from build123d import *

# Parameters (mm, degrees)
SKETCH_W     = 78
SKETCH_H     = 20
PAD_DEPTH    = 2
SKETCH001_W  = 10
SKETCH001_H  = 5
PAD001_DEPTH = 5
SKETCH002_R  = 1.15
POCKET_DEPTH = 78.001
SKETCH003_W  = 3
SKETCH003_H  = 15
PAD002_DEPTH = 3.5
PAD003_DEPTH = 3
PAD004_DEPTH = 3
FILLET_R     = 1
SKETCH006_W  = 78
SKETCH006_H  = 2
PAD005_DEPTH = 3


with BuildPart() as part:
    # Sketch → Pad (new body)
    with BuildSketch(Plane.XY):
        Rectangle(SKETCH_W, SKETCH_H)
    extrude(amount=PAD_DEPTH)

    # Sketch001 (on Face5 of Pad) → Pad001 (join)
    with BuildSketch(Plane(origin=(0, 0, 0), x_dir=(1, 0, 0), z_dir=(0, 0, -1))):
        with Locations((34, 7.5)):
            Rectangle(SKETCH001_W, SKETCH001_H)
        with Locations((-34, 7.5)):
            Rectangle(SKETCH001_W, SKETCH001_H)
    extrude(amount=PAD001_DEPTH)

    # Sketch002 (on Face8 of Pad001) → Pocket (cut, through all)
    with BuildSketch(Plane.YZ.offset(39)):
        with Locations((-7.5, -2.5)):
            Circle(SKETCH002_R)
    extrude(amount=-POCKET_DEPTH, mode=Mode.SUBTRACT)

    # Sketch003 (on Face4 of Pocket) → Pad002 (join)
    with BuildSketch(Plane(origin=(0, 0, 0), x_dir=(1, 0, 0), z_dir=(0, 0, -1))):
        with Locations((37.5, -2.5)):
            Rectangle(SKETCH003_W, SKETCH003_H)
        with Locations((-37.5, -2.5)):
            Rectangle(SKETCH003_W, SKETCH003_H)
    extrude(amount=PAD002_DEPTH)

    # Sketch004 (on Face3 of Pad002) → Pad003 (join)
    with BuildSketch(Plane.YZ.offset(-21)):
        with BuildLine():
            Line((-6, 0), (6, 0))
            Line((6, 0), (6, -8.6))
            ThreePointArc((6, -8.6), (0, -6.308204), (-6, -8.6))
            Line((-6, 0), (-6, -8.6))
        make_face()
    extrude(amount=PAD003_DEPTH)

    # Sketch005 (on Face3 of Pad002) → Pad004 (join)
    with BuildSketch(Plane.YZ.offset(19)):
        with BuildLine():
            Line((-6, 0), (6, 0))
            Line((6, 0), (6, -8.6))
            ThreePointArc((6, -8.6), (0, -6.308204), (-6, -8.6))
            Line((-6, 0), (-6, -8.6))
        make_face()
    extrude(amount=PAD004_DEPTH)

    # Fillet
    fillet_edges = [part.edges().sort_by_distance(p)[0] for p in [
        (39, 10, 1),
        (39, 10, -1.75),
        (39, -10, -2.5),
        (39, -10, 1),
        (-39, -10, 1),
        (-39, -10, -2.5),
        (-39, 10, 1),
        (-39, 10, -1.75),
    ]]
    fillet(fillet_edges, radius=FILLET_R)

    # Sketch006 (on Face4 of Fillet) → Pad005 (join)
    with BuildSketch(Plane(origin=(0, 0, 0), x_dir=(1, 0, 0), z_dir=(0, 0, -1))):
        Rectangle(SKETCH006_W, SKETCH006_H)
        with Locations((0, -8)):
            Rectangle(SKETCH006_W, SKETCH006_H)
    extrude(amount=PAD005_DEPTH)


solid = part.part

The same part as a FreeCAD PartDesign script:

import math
import FreeCAD as App
import Part
import Sketcher
from FreeCAD import Vector


def edges_at(feature, points):
    """Names of the edges that pass closest to the given points."""
    edges = feature.Shape.Edges
    near = lambda p: min(range(len(edges)), key=lambda i: edges[i].distToShape(Part.Vertex(*p))[0])
    return sorted({f"Edge{near(p) + 1}" for p in points})

doc = App.newDocument("Part")
body = doc.addObject("PartDesign::Body", "Body")

# Sketch on XY plane
sketch1 = body.newObject("Sketcher::SketchObject", "Sketch")
sketch1.AttachmentSupport = (doc.getObject("XY_Plane"), [""])
sketch1.MapMode = "FlatFace"
sketch1.addGeometry(Part.LineSegment(Vector(-39, 10, 0), Vector(-39, -10, 0)), False)
sketch1.addGeometry(Part.LineSegment(Vector(-39, -10, 0), Vector(39, -10, 0)), False)
sketch1.addGeometry(Part.LineSegment(Vector(39, -10, 0), Vector(39, 10, 0)), False)
sketch1.addGeometry(Part.LineSegment(Vector(39, 10, 0), Vector(-39, 10, 0)), False)
sketch1.addConstraint(Sketcher.Constraint("Coincident", 0, 2, 1, 1))
sketch1.addConstraint(Sketcher.Constraint("Coincident", 1, 2, 2, 1))
sketch1.addConstraint(Sketcher.Constraint("Coincident", 2, 2, 3, 1))
sketch1.addConstraint(Sketcher.Constraint("Coincident", 3, 2, 0, 1))
sketch1.addConstraint(Sketcher.Constraint("Vertical", 0))
sketch1.addConstraint(Sketcher.Constraint("Horizontal", 1))
sketch1.addConstraint(Sketcher.Constraint("Vertical", 2))
sketch1.addConstraint(Sketcher.Constraint("Horizontal", 3))
sketch1.addConstraint(Sketcher.Constraint("Symmetric", 0, 2, 2, 2, -1, 1))
sketch1.addConstraint(Sketcher.Constraint("DistanceX", 1, 1, 1, 2, 78.0))
sketch1.addConstraint(Sketcher.Constraint("DistanceY", 0, 2, 0, 1, 20.0))
pad1 = body.newObject("PartDesign::Pad", "Pad")
pad1.Profile = sketch1
pad1.Length = 2

# Sketch on XY plane
sketch2 = body.newObject("Sketcher::SketchObject", "Sketch001")
sketch2.AttachmentSupport = (doc.getObject("XY_Plane"), [""])
sketch2.MapMode = "FlatFace"
sketch2.addGeometry(Part.LineSegment(Vector(29, -10, 0), Vector(29, -5, 0)), False)
sketch2.addGeometry(Part.LineSegment(Vector(29, -5, 0), Vector(39, -5, 0)), False)
sketch2.addGeometry(Part.LineSegment(Vector(39, -5, 0), Vector(39, -10, 0)), False)
sketch2.addGeometry(Part.LineSegment(Vector(39, -10, 0), Vector(29, -10, 0)), False)
sketch2.addGeometry(Part.LineSegment(Vector(-39, -10, 0), Vector(-39, -5, 0)), False)
sketch2.addGeometry(Part.LineSegment(Vector(-39, -5, 0), Vector(-29, -5, 0)), False)
sketch2.addGeometry(Part.LineSegment(Vector(-29, -5, 0), Vector(-29, -10, 0)), False)
sketch2.addGeometry(Part.LineSegment(Vector(-29, -10, 0), Vector(-39, -10, 0)), False)
sketch2.addConstraint(Sketcher.Constraint("Coincident", 0, 2, 1, 1))
sketch2.addConstraint(Sketcher.Constraint("Coincident", 1, 2, 2, 1))
sketch2.addConstraint(Sketcher.Constraint("Coincident", 2, 2, 3, 1))
sketch2.addConstraint(Sketcher.Constraint("Coincident", 3, 2, 0, 1))
sketch2.addConstraint(Sketcher.Constraint("Coincident", 4, 2, 5, 1))
sketch2.addConstraint(Sketcher.Constraint("Coincident", 5, 2, 6, 1))
sketch2.addConstraint(Sketcher.Constraint("Coincident", 6, 2, 7, 1))
sketch2.addConstraint(Sketcher.Constraint("Coincident", 7, 2, 4, 1))
sketch2.addConstraint(Sketcher.Constraint("Vertical", 0))
sketch2.addConstraint(Sketcher.Constraint("Horizontal", 1))
sketch2.addConstraint(Sketcher.Constraint("Vertical", 2))
sketch2.addConstraint(Sketcher.Constraint("Horizontal", 3))
sketch2.addConstraint(Sketcher.Constraint("Vertical", 4))
sketch2.addConstraint(Sketcher.Constraint("Horizontal", 5))
sketch2.addConstraint(Sketcher.Constraint("Vertical", 6))
sketch2.addConstraint(Sketcher.Constraint("Horizontal", 7))
sketch2.addConstraint(Sketcher.Constraint("Symmetric", 1, 2, 4, 2, -2))
sketch2.addConstraint(Sketcher.Constraint("Symmetric", 3, 2, 6, 2, -2))
sketch2.addConstraint(Sketcher.Constraint("DistanceX", 1, 1, 1, 2, 10.0))
sketch2.addConstraint(Sketcher.Constraint("DistanceY", 0, 1, 0, 2, 5.0))
sketch2.addConstraint(Sketcher.Constraint("DistanceX", -1, 1, 0, 2, 29.0))
sketch2.addConstraint(Sketcher.Constraint("DistanceY", 0, 2, -1, 1, 5.0))
pad2 = body.newObject("PartDesign::Pad", "Pad001")
pad2.Profile = sketch2
pad2.Length = 5
pad2.Reversed = True

# Sketch on YZ plane
sketch3 = body.newObject("Sketcher::SketchObject", "Sketch002")
sketch3.AttachmentSupport = (doc.getObject("YZ_Plane"), [""])
sketch3.MapMode = "FlatFace"
sketch3.AttachmentOffset = App.Placement(Vector(0, 0, 39), App.Rotation())
sketch3.addGeometry(Part.Circle(Vector(-7.5, -2.5, 0), Vector(0, 0, 1), 1.15), False)
sketch3.addConstraint(Sketcher.Constraint("Diameter", 0, 2.3))
sketch3.addConstraint(Sketcher.Constraint("DistanceX", 0, 3, -1, 1, 7.5))
sketch3.addConstraint(Sketcher.Constraint("DistanceY", 0, 3, -1, 1, 2.5))
pocket1 = body.newObject("PartDesign::Pocket", "Pocket")
pocket1.Profile = sketch3
pocket1.Type = "ThroughAll"

# Sketch on XY plane
sketch4 = body.newObject("Sketcher::SketchObject", "Sketch003")
sketch4.AttachmentSupport = (doc.getObject("XY_Plane"), [""])
sketch4.MapMode = "FlatFace"
sketch4.addGeometry(Part.LineSegment(Vector(36, -5, 0), Vector(36, 10, 0)), False)
sketch4.addGeometry(Part.LineSegment(Vector(36, 10, 0), Vector(39, 10, 0)), False)
sketch4.addGeometry(Part.LineSegment(Vector(39, 10, 0), Vector(39, -5, 0)), False)
sketch4.addGeometry(Part.LineSegment(Vector(39, -5, 0), Vector(36, -5, 0)), False)
sketch4.addGeometry(Part.LineSegment(Vector(-39, -5, 0), Vector(-39, 10, 0)), False)
sketch4.addGeometry(Part.LineSegment(Vector(-39, 10, 0), Vector(-36, 10, 0)), False)
sketch4.addGeometry(Part.LineSegment(Vector(-36, 10, 0), Vector(-36, -5, 0)), False)
sketch4.addGeometry(Part.LineSegment(Vector(-36, -5, 0), Vector(-39, -5, 0)), False)
sketch4.addConstraint(Sketcher.Constraint("Coincident", 0, 2, 1, 1))
sketch4.addConstraint(Sketcher.Constraint("Coincident", 1, 2, 2, 1))
sketch4.addConstraint(Sketcher.Constraint("Coincident", 2, 2, 3, 1))
sketch4.addConstraint(Sketcher.Constraint("Coincident", 3, 2, 0, 1))
sketch4.addConstraint(Sketcher.Constraint("Coincident", 4, 2, 5, 1))
sketch4.addConstraint(Sketcher.Constraint("Coincident", 5, 2, 6, 1))
sketch4.addConstraint(Sketcher.Constraint("Coincident", 6, 2, 7, 1))
sketch4.addConstraint(Sketcher.Constraint("Coincident", 7, 2, 4, 1))
sketch4.addConstraint(Sketcher.Constraint("Vertical", 0))
sketch4.addConstraint(Sketcher.Constraint("Horizontal", 1))
sketch4.addConstraint(Sketcher.Constraint("Vertical", 2))
sketch4.addConstraint(Sketcher.Constraint("Horizontal", 3))
sketch4.addConstraint(Sketcher.Constraint("Vertical", 4))
sketch4.addConstraint(Sketcher.Constraint("Horizontal", 5))
sketch4.addConstraint(Sketcher.Constraint("Vertical", 6))
sketch4.addConstraint(Sketcher.Constraint("Horizontal", 7))
sketch4.addConstraint(Sketcher.Constraint("Symmetric", 1, 2, 4, 2, -2))
sketch4.addConstraint(Sketcher.Constraint("Symmetric", 3, 2, 6, 2, -2))
sketch4.addConstraint(Sketcher.Constraint("DistanceX", 1, 1, 1, 2, 3.0))
sketch4.addConstraint(Sketcher.Constraint("DistanceY", 0, 1, 0, 2, 15.0))
sketch4.addConstraint(Sketcher.Constraint("DistanceX", -1, 1, 0, 2, 36.0))
sketch4.addConstraint(Sketcher.Constraint("DistanceY", -1, 1, 0, 2, 10.0))
pad3 = body.newObject("PartDesign::Pad", "Pad002")
pad3.Profile = sketch4
pad3.Length = 3.5
pad3.Reversed = True

# Sketch on YZ plane
sketch5 = body.newObject("Sketcher::SketchObject", "Sketch004")
sketch5.AttachmentSupport = (doc.getObject("YZ_Plane"), [""])
sketch5.MapMode = "FlatFace"
sketch5.AttachmentOffset = App.Placement(Vector(0, 0, -21), App.Rotation())
sketch5.addGeometry(Part.LineSegment(Vector(6, 0, 0), Vector(-6, 0, 0)), False)
sketch5.addGeometry(Part.LineSegment(Vector(-6, 0, 0), Vector(-6, -8.6, 0)), False)
sketch5.addGeometry(Part.ArcOfCircle(Part.Circle(Vector(0, -15.308204, 0), Vector(0, 0, 1), 9), math.radians(48.189686), math.radians(131.810314)), False)
sketch5.addGeometry(Part.LineSegment(Vector(6, -8.6, 0), Vector(6, 0, 0)), False)
sketch5.addConstraint(Sketcher.Constraint("Coincident", 0, 2, 1, 1))
sketch5.addConstraint(Sketcher.Constraint("Coincident", 1, 2, 2, 2))
sketch5.addConstraint(Sketcher.Constraint("Coincident", 2, 1, 3, 1))
sketch5.addConstraint(Sketcher.Constraint("Coincident", 3, 2, 0, 1))
sketch5.addConstraint(Sketcher.Constraint("Horizontal", 0))
sketch5.addConstraint(Sketcher.Constraint("Vertical", 1))
sketch5.addConstraint(Sketcher.Constraint("Vertical", 3))
sketch5.addConstraint(Sketcher.Constraint("Symmetric", 0, 2, 3, 2, -1, 1))
sketch5.addConstraint(Sketcher.Constraint("PointOnObject", 2, 3, -2))
sketch5.addConstraint(Sketcher.Constraint("Radius", 2, 9.0))
sketch5.addConstraint(Sketcher.Constraint("DistanceX", 0, 2, 0, 1, 12.0))
sketch5.addConstraint(Sketcher.Constraint("DistanceY", 1, 2, 1, 1, 8.6))
pad4 = body.newObject("PartDesign::Pad", "Pad003")
pad4.Profile = sketch5
pad4.Length = 3

# Sketch on YZ plane
sketch6 = body.newObject("Sketcher::SketchObject", "Sketch005")
sketch6.AttachmentSupport = (doc.getObject("YZ_Plane"), [""])
sketch6.MapMode = "FlatFace"
sketch6.AttachmentOffset = App.Placement(Vector(0, 0, 19), App.Rotation())
sketch6.addGeometry(Part.LineSegment(Vector(6, 0, 0), Vector(-6, 0, 0)), False)
sketch6.addGeometry(Part.LineSegment(Vector(-6, 0, 0), Vector(-6, -8.6, 0)), False)
sketch6.addGeometry(Part.ArcOfCircle(Part.Circle(Vector(0, -15.308204, 0), Vector(0, 0, 1), 9), math.radians(48.189686), math.radians(131.810314)), False)
sketch6.addGeometry(Part.LineSegment(Vector(6, -8.6, 0), Vector(6, 0, 0)), False)
sketch6.addConstraint(Sketcher.Constraint("Coincident", 0, 2, 1, 1))
sketch6.addConstraint(Sketcher.Constraint("Coincident", 1, 2, 2, 2))
sketch6.addConstraint(Sketcher.Constraint("Coincident", 2, 1, 3, 1))
sketch6.addConstraint(Sketcher.Constraint("Coincident", 3, 2, 0, 1))
sketch6.addConstraint(Sketcher.Constraint("Horizontal", 0))
sketch6.addConstraint(Sketcher.Constraint("Vertical", 1))
sketch6.addConstraint(Sketcher.Constraint("Vertical", 3))
sketch6.addConstraint(Sketcher.Constraint("Symmetric", 0, 2, 3, 2, -1, 1))
sketch6.addConstraint(Sketcher.Constraint("PointOnObject", 2, 3, -2))
sketch6.addConstraint(Sketcher.Constraint("Radius", 2, 9.0))
sketch6.addConstraint(Sketcher.Constraint("DistanceX", 0, 2, 0, 1, 12.0))
sketch6.addConstraint(Sketcher.Constraint("DistanceY", 1, 2, 1, 1, 8.6))
pad5 = body.newObject("PartDesign::Pad", "Pad004")
pad5.Profile = sketch6
pad5.Length = 3
doc.recompute()

fillet = body.newObject("PartDesign::Fillet", "Fillet")
fillet.Base = (pad5, edges_at(pad5, [
    (39, 10, -0.75),
    (39, 10, -0.75),
    (39, -10, -1.5),
    (39, -10, -1.5),
    (-39, -10, -1.5),
    (-39, -10, -1.5),
    (-39, 10, -0.75),
    (-39, 10, -0.75),
]))
fillet.Radius = 1

# Sketch on XY plane
sketch7 = body.newObject("Sketcher::SketchObject", "Sketch006")
sketch7.AttachmentSupport = (doc.getObject("XY_Plane"), [""])
sketch7.MapMode = "FlatFace"
sketch7.addGeometry(Part.LineSegment(Vector(-39, -1, 0), Vector(-39, 1, 0)), False)
sketch7.addGeometry(Part.LineSegment(Vector(-39, 1, 0), Vector(39, 1, 0)), False)
sketch7.addGeometry(Part.LineSegment(Vector(39, 1, 0), Vector(39, -1, 0)), False)
sketch7.addGeometry(Part.LineSegment(Vector(39, -1, 0), Vector(-39, -1, 0)), False)
sketch7.addGeometry(Part.LineSegment(Vector(-39, 7, 0), Vector(-39, 9, 0)), False)
sketch7.addGeometry(Part.LineSegment(Vector(-39, 9, 0), Vector(39, 9, 0)), False)
sketch7.addGeometry(Part.LineSegment(Vector(39, 9, 0), Vector(39, 7, 0)), False)
sketch7.addGeometry(Part.LineSegment(Vector(39, 7, 0), Vector(-39, 7, 0)), False)
sketch7.addConstraint(Sketcher.Constraint("Coincident", 0, 2, 1, 1))
sketch7.addConstraint(Sketcher.Constraint("Coincident", 1, 2, 2, 1))
sketch7.addConstraint(Sketcher.Constraint("Coincident", 2, 2, 3, 1))
sketch7.addConstraint(Sketcher.Constraint("Coincident", 3, 2, 0, 1))
sketch7.addConstraint(Sketcher.Constraint("Coincident", 4, 2, 5, 1))
sketch7.addConstraint(Sketcher.Constraint("Coincident", 5, 2, 6, 1))
sketch7.addConstraint(Sketcher.Constraint("Coincident", 6, 2, 7, 1))
sketch7.addConstraint(Sketcher.Constraint("Coincident", 7, 2, 4, 1))
sketch7.addConstraint(Sketcher.Constraint("Vertical", 0))
sketch7.addConstraint(Sketcher.Constraint("Horizontal", 1))
sketch7.addConstraint(Sketcher.Constraint("Vertical", 2))
sketch7.addConstraint(Sketcher.Constraint("Horizontal", 3))
sketch7.addConstraint(Sketcher.Constraint("Vertical", 4))
sketch7.addConstraint(Sketcher.Constraint("Horizontal", 5))
sketch7.addConstraint(Sketcher.Constraint("Vertical", 6))
sketch7.addConstraint(Sketcher.Constraint("Horizontal", 7))
sketch7.addConstraint(Sketcher.Constraint("Symmetric", 0, 2, 2, 2, -1, 1))
sketch7.addConstraint(Sketcher.Constraint("Vertical", 3, 2, 4, 2))
sketch7.addConstraint(Sketcher.Constraint("Vertical", 2, 2, 5, 2))
sketch7.addConstraint(Sketcher.Constraint("Equal", 2, 4))
sketch7.addConstraint(Sketcher.Constraint("DistanceX", 1, 1, 1, 2, 78.0))
sketch7.addConstraint(Sketcher.Constraint("DistanceY", 0, 1, 0, 2, 2.0))
sketch7.addConstraint(Sketcher.Constraint("DistanceY", -1, 1, 4, 2, 9.0))
pad6 = body.newObject("PartDesign::Pad", "Pad005")
pad6.Profile = sketch7
pad6.Length = 3
pad6.Reversed = True

doc.recompute()
